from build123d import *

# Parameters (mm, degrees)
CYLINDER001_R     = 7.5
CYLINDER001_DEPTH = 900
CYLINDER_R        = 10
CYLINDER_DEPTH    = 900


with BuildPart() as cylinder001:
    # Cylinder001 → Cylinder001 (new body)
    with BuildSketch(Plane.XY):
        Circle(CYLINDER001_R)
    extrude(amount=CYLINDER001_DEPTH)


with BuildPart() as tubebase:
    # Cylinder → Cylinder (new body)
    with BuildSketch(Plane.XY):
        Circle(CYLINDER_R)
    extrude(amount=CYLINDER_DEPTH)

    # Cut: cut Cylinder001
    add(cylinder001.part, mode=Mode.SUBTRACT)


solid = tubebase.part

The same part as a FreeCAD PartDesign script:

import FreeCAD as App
import Part
import Sketcher

V = App.Vector

doc = App.newDocument("Part")
params = doc.addObject("Spreadsheet::Sheet", "Params")
for row, (alias, value) in enumerate([
    ("sketch1_diameter", "15 mm"),
    ("pad1_length", "900 mm"),
    ("sketch2_diameter", "20 mm"),
    ("pad2_length", "900 mm"),
], start=1):
    params.set(f"A{row}", alias)
    params.set(f"B{row}", "=" + value)
    params.setAlias(f"B{row}", alias)

body = doc.addObject("PartDesign::Body", "Body")

# Sketch on XY plane
sketch1 = body.newObject("Sketcher::SketchObject", "Sketch")
sketch1.AttachmentSupport = (doc.getObject("XY_Plane"), [""])
sketch1.MapMode = "FlatFace"
sketch1.addGeometry(Part.Circle(V(0, 0, 0), V(0, 0, 1), 8), False)
sketch1.addConstraint([
    Sketcher.Constraint("Coincident", 0, 3, -1, 1),
    Sketcher.Constraint("Diameter", 0, 15.0),
])
sketch1.setExpression("Constraints[1]", "Params.sketch1_diameter")
pad1 = body.newObject("PartDesign::Pad", "Pad")
pad1.Profile = sketch1
pad1.setExpression("Length", "Params.pad1_length")
body2 = doc.addObject("PartDesign::Body", "Body001")

# Sketch on XY plane
sketch2 = body2.newObject("Sketcher::SketchObject", "Sketch001")
sketch2.AttachmentSupport = (doc.getObject("XY_Plane001"), [""])
sketch2.MapMode = "FlatFace"
sketch2.addGeometry(Part.Circle(V(0, 0, 0), V(0, 0, 1), 10), False)
sketch2.addConstraint([
    Sketcher.Constraint("Coincident", 0, 3, -1, 1),
    Sketcher.Constraint("Diameter", 0, 20.0),
])
sketch2.setExpression("Constraints[1]", "Params.sketch2_diameter")
pad2 = body2.newObject("PartDesign::Pad", "Pad001")
pad2.Profile = sketch2
pad2.setExpression("Length", "Params.pad2_length")
doc.recompute()

boolean = body2.newObject("PartDesign::Boolean", "Boolean")
boolean.Type = "Cut"
boolean.addObjects([body])

doc.recompute()
